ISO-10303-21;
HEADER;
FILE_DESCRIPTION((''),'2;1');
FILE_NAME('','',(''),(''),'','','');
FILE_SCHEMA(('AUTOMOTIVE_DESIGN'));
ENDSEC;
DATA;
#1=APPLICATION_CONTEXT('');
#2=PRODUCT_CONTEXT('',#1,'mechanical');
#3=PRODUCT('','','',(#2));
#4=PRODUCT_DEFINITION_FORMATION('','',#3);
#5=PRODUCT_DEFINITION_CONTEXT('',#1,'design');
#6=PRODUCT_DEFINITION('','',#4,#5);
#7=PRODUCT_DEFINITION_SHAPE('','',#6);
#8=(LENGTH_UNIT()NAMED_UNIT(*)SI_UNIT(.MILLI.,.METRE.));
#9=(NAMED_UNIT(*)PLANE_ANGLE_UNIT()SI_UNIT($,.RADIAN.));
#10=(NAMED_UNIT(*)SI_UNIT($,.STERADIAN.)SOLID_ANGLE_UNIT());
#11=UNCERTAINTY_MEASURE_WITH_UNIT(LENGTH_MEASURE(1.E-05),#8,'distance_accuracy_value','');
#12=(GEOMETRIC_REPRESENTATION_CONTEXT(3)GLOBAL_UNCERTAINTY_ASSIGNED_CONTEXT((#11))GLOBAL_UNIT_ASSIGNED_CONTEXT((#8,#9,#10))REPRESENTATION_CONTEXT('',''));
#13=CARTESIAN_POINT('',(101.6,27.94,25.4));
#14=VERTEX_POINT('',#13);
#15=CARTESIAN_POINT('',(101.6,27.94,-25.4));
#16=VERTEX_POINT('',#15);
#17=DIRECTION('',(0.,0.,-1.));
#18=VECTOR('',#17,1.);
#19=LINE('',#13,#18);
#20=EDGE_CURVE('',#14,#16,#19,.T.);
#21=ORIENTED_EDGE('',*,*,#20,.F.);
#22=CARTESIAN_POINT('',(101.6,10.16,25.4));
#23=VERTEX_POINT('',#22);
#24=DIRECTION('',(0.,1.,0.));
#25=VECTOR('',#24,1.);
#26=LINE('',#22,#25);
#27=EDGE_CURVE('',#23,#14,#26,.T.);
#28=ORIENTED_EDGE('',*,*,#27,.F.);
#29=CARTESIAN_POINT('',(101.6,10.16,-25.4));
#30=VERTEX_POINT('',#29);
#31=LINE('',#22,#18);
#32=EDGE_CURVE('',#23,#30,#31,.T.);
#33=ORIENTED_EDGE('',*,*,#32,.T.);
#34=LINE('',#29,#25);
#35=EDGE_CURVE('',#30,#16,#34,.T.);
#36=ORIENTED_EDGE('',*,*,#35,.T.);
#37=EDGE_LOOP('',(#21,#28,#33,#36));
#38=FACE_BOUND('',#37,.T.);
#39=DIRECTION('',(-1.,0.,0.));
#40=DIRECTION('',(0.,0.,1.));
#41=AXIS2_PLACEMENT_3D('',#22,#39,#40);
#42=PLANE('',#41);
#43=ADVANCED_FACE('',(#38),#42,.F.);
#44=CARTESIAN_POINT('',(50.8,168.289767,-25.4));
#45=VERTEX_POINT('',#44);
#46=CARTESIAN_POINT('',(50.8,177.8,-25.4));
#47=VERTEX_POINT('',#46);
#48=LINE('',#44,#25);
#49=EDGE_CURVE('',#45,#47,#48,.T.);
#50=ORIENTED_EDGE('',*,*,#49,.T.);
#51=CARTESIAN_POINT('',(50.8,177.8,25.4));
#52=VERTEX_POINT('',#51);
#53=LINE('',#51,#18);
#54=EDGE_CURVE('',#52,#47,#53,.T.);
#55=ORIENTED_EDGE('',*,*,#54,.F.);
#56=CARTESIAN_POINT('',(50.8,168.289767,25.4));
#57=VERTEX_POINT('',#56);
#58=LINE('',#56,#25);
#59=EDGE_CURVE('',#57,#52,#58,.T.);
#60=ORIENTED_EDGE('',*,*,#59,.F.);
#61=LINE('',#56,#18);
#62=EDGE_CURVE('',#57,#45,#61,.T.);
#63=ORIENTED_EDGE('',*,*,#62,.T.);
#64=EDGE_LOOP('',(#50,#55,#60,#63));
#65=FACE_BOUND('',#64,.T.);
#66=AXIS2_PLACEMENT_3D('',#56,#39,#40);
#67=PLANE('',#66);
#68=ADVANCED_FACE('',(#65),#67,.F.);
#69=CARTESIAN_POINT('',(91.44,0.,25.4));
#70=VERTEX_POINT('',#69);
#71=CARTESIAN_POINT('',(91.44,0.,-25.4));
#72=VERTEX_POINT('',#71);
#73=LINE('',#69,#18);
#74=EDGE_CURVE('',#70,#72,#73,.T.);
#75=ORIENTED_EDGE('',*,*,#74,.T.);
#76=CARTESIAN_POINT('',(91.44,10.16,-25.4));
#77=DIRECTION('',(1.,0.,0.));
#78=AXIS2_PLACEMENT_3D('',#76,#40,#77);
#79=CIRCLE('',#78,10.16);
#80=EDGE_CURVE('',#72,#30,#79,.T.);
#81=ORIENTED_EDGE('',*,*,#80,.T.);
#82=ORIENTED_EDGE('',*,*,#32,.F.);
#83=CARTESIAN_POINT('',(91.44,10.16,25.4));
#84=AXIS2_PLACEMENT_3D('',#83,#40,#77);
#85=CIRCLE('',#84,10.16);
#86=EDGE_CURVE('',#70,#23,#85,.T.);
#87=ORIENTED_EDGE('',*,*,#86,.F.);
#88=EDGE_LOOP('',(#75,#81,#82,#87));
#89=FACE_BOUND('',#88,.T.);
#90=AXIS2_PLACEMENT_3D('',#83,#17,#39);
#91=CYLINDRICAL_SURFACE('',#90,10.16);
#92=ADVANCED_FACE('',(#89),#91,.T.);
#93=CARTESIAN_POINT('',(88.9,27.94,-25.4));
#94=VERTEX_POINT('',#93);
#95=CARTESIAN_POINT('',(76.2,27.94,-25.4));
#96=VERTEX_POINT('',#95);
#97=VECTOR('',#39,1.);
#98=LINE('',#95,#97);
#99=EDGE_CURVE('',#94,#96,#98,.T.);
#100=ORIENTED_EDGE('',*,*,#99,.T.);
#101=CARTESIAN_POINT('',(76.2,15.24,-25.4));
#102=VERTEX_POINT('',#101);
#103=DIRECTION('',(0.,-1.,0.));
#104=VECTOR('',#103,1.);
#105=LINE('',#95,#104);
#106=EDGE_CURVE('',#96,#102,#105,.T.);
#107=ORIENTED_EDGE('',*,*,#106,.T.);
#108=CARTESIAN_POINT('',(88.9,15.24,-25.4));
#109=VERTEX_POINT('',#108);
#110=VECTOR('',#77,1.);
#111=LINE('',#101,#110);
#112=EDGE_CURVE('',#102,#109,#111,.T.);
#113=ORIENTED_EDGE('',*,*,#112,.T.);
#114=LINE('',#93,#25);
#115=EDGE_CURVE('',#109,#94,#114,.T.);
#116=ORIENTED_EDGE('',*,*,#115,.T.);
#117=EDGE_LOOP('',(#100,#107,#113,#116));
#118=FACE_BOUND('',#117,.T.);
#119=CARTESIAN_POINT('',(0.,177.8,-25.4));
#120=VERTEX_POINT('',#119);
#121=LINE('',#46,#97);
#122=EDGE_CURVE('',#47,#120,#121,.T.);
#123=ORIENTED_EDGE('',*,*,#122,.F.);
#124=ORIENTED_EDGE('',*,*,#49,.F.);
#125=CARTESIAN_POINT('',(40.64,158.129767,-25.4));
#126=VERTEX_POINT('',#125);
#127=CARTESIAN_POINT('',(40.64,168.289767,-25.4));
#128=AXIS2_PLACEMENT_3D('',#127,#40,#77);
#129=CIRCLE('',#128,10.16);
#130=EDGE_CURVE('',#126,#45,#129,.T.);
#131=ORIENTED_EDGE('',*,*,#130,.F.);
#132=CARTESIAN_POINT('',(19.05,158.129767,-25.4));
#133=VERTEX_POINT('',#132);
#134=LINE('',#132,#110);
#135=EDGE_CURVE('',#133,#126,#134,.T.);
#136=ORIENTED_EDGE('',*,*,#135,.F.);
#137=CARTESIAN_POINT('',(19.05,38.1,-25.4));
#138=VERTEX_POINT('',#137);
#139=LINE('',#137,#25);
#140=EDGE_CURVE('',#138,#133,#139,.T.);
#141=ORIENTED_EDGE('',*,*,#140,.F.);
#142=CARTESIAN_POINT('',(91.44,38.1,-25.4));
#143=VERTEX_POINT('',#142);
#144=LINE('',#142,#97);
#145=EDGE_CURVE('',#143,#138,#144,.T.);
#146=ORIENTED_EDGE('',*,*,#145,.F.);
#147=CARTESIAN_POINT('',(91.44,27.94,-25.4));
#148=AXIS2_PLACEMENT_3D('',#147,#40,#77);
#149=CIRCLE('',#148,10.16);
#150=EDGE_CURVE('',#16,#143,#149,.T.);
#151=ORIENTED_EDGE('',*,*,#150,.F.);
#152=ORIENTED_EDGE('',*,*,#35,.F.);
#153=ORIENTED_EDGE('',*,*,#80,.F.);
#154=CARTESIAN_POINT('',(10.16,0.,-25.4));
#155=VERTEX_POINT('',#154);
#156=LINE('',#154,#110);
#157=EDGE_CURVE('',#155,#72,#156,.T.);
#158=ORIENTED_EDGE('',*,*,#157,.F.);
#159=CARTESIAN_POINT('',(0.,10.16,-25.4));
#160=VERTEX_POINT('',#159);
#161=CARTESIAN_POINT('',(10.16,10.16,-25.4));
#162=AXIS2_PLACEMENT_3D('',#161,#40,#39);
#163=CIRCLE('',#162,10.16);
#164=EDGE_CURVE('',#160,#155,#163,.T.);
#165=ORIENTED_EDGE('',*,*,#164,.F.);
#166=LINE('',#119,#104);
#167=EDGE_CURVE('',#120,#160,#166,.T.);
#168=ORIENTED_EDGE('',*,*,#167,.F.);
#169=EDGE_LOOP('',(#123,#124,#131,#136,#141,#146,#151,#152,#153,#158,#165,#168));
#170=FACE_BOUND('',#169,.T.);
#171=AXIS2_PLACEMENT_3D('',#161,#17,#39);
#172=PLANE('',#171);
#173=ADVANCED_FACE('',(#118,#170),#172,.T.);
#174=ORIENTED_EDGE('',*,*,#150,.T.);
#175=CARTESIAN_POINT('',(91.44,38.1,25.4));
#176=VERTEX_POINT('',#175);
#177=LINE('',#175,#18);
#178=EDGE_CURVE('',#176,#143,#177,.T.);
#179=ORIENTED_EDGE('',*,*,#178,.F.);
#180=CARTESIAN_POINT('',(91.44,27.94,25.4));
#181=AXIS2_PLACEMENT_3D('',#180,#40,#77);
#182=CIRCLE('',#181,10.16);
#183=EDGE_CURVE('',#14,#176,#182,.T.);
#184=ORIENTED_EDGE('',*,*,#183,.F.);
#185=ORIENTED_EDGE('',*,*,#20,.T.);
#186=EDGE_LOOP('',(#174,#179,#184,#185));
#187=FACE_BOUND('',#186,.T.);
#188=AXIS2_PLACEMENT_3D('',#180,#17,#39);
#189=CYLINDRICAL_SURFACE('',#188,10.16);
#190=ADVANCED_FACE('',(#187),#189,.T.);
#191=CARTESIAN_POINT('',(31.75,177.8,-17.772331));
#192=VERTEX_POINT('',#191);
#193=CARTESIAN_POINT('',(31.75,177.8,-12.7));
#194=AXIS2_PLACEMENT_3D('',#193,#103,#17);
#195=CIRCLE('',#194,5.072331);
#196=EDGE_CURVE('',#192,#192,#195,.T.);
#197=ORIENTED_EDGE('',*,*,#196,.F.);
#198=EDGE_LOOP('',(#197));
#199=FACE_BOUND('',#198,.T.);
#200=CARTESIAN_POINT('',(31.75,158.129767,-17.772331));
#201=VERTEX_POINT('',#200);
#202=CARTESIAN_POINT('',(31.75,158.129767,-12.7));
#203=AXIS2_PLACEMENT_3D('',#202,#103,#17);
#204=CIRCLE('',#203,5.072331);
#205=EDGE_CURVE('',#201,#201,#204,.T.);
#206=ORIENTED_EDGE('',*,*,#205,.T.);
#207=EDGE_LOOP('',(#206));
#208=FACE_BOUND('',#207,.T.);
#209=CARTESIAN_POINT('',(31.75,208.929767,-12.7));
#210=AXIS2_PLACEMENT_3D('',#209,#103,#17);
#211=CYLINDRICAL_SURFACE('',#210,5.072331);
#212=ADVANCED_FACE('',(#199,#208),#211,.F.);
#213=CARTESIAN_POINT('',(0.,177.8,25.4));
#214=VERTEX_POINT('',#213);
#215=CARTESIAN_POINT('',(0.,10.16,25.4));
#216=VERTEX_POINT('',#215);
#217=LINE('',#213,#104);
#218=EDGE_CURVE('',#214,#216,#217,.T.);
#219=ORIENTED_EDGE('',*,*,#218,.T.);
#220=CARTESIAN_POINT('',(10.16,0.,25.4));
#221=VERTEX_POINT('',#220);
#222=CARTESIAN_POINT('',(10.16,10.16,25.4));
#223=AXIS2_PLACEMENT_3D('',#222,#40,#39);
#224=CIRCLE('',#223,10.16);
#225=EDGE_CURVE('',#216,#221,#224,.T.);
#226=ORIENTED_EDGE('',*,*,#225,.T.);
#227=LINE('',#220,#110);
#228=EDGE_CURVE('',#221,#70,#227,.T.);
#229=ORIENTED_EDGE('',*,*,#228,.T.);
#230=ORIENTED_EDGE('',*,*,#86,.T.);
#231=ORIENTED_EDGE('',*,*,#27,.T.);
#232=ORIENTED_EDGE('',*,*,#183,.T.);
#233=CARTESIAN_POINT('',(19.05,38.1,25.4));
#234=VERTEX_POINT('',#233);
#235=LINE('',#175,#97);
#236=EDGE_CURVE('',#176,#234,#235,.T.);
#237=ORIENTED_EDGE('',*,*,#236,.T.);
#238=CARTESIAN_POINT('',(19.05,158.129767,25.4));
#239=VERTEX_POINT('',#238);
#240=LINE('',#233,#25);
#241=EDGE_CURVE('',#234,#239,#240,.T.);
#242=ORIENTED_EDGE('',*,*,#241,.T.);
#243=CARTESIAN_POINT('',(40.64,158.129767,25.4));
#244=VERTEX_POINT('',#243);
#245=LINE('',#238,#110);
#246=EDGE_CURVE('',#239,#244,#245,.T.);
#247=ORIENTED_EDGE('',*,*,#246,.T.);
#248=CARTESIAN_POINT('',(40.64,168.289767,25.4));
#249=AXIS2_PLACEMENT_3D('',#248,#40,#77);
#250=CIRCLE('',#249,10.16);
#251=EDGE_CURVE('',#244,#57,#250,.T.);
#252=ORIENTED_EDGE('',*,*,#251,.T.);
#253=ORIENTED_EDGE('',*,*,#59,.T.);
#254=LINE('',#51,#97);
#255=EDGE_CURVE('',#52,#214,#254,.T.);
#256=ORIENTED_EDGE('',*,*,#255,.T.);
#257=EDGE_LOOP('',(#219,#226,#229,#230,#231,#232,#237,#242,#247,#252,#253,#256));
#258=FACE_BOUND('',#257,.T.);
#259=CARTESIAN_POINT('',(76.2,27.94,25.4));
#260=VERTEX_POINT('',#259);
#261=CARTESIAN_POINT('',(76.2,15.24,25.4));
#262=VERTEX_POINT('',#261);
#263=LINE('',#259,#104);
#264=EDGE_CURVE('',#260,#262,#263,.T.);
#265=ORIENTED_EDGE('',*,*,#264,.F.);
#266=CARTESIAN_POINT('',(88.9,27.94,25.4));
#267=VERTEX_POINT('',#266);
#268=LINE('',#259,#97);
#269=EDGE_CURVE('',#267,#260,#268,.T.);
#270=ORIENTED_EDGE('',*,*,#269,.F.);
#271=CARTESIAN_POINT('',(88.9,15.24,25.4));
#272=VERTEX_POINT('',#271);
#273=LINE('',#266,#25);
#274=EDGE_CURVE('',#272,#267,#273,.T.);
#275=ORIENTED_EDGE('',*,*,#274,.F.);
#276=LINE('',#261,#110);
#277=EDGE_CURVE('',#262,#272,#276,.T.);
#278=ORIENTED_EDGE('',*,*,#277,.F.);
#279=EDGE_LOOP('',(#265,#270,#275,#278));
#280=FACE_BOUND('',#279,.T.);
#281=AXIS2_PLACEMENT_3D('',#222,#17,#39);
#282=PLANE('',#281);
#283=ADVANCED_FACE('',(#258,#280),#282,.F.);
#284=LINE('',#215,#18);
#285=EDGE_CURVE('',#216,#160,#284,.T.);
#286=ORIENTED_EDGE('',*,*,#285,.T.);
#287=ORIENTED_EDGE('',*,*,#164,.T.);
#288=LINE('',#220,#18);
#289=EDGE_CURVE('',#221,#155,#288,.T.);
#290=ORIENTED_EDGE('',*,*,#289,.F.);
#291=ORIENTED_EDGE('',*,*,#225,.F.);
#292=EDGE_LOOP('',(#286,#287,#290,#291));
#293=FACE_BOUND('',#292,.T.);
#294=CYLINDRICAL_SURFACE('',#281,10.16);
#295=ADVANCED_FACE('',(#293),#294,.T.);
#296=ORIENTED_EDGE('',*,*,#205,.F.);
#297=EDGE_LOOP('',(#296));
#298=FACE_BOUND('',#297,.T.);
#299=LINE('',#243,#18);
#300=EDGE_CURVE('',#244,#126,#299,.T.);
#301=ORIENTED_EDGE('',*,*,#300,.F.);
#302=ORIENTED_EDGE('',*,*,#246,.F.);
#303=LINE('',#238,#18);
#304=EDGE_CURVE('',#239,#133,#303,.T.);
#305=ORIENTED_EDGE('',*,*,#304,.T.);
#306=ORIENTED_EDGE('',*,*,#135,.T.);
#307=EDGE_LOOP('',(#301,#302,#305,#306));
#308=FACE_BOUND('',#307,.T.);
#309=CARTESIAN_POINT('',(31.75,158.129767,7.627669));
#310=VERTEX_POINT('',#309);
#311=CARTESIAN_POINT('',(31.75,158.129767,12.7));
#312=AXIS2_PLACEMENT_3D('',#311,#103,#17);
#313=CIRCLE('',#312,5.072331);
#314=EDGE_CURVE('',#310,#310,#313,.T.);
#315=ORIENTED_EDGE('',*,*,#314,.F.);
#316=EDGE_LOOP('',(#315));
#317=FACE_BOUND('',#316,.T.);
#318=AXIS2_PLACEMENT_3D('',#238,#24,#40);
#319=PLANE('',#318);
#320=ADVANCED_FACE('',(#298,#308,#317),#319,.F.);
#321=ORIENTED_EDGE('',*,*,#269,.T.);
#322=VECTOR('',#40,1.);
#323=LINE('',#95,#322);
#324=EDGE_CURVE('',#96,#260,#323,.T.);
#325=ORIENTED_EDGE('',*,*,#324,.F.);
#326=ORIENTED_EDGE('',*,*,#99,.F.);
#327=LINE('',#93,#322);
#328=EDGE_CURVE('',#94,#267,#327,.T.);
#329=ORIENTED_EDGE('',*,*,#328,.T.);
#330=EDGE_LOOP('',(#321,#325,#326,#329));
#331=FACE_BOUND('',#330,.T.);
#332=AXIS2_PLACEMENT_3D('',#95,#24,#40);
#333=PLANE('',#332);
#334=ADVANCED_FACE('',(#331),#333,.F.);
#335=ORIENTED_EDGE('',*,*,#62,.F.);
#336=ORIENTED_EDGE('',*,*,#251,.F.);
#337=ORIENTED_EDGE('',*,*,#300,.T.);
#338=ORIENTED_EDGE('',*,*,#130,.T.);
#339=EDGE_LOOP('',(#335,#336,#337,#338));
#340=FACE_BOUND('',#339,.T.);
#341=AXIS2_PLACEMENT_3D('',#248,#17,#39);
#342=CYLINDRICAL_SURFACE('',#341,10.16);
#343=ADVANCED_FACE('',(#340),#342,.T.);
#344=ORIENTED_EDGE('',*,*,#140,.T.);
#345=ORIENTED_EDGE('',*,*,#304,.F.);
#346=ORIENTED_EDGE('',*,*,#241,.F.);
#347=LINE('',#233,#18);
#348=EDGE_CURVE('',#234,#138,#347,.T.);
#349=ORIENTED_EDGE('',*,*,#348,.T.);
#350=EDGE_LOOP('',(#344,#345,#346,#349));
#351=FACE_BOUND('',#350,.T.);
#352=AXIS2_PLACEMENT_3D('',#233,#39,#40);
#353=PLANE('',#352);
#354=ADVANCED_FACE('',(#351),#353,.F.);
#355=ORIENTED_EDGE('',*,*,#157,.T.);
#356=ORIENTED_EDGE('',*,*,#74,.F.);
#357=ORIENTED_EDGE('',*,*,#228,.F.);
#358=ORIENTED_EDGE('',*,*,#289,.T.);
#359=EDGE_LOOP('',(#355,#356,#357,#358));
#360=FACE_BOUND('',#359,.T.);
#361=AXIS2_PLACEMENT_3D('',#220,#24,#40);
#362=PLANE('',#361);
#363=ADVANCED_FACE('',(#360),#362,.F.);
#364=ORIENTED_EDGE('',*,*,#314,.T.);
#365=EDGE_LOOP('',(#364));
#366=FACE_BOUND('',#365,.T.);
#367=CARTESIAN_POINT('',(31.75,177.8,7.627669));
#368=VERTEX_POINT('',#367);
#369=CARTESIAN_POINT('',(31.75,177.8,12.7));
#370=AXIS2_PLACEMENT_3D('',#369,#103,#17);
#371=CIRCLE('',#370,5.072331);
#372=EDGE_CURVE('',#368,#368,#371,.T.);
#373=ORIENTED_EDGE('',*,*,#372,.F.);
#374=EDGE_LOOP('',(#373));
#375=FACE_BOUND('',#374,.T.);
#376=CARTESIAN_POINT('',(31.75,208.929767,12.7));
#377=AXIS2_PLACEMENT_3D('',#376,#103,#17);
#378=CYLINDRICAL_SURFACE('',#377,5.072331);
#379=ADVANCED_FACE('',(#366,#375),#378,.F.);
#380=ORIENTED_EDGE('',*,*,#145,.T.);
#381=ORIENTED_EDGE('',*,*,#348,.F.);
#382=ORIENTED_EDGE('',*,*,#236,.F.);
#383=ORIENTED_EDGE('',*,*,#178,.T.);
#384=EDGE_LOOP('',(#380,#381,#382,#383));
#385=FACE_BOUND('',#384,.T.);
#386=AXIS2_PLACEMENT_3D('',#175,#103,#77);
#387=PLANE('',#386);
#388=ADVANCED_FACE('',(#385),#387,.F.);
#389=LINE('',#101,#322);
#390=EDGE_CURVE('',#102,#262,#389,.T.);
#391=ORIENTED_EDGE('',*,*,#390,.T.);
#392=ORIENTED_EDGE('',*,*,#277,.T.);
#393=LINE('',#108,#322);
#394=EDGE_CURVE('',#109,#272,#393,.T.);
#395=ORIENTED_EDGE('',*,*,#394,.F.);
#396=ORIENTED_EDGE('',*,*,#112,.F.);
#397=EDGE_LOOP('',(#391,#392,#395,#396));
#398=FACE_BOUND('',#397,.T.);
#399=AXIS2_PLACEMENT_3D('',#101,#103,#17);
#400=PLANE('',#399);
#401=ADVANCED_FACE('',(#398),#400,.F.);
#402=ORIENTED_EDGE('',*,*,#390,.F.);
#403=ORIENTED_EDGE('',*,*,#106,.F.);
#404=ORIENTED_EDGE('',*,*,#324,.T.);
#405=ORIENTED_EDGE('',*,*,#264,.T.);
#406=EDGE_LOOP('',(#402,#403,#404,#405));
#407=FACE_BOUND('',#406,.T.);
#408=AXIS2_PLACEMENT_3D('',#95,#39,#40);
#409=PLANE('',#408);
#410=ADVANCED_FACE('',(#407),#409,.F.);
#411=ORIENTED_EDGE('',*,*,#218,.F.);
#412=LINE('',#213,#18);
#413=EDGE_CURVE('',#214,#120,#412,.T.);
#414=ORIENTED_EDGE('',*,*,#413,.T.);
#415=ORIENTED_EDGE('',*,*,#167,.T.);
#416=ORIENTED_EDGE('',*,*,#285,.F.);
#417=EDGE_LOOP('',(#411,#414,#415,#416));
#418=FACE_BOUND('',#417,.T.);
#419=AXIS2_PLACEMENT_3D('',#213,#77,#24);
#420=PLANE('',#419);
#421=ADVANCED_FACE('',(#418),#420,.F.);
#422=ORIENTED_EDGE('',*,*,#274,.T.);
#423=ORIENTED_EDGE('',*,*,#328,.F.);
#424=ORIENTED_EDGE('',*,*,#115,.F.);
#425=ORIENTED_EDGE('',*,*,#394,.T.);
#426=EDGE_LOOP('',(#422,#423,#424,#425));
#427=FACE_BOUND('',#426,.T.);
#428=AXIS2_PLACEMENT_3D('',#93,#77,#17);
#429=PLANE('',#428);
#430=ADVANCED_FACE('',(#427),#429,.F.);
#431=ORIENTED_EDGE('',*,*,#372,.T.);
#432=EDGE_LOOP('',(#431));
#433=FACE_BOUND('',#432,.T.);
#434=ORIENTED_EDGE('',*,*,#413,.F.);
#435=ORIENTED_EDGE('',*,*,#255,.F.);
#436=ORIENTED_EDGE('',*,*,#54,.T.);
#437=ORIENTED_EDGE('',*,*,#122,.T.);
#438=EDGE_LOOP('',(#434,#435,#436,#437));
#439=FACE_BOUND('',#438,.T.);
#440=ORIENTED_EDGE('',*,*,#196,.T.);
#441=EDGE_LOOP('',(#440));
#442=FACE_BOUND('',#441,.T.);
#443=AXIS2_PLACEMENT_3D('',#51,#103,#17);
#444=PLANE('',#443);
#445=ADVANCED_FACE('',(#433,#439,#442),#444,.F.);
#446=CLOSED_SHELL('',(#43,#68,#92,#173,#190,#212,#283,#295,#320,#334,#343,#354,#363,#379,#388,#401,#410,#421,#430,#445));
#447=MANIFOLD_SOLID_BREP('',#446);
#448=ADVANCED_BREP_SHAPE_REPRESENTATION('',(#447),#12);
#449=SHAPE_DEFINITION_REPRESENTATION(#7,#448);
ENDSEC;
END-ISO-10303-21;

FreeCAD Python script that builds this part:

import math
import FreeCAD as App
import Part
import Sketcher

V = App.Vector
Q = App.Units.Quantity


def add_polygon(sketch, points):
    """Adds a closed chain of lines whose ends are joined by coincident constraints."""
    first, n = sketch.GeometryCount, len(points)
    for a, b in zip(points, points[1:] + points[:1]):
        sketch.addGeometry(Part.LineSegment(App.Vector(*a, 0), App.Vector(*b, 0)), False)
    for i in range(n):
        sketch.addConstraint(Sketcher.Constraint("Coincident", first + i, 2, first + (i + 1) % n, 1))

doc = App.newDocument("Part")
body = doc.addObject("PartDesign::Body", "Body")

# Sketch on XY plane
sketch1 = body.newObject("Sketcher::SketchObject", "Sketch")
sketch1.AttachmentSupport = (doc.getObject("XY_Plane"), [""])
sketch1.MapMode = "FlatFace"
sketch1.addGeometry(Part.LineSegment(V(10, 0, 0), V(91, 0, 0)), False)
sketch1.addGeometry(Part.ArcOfCircle(Part.Circle(V(91, 10, 0), V(0, 0, 1), 10), math.radians(-90), math.radians(0)), False)
sketch1.addGeometry(Part.LineSegment(V(102, 10, 0), V(102, 28, 0)), False)
sketch1.addGeometry(Part.ArcOfCircle(Part.Circle(V(91, 28, 0), V(0, 0, 1), 10), math.radians(0), math.radians(90)), False)
sketch1.addGeometry(Part.LineSegment(V(91, 38, 0), V(19, 38, 0)), False)
sketch1.addGeometry(Part.LineSegment(V(19, 38, 0), V(19, 158, 0)), False)
sketch1.addGeometry(Part.LineSegment(V(19, 158, 0), V(41, 158, 0)), False)
sketch1.addGeometry(Part.ArcOfCircle(Part.Circle(V(41, 168, 0), V(0, 0, 1), 10), math.radians(-90), math.radians(0)), False)
sketch1.addGeometry(Part.LineSegment(V(51, 168, 0), V(51, 178, 0)), False)
sketch1.addGeometry(Part.LineSegment(V(51, 178, 0), V(0, 178, 0)), False)
sketch1.addGeometry(Part.LineSegment(V(0, 178, 0), V(0, 10, 0)), False)
sketch1.addGeometry(Part.ArcOfCircle(Part.Circle(V(10, 10, 0), V(0, 0, 1), 10), math.radians(180), math.radians(270)), False)
sketch1.addConstraint(Sketcher.Constraint("Tangent", 0, 2, 1, 1))
sketch1.addConstraint(Sketcher.Constraint("Tangent", 1, 2, 2, 1))
sketch1.addConstraint(Sketcher.Constraint("Tangent", 2, 2, 3, 1))
sketch1.addConstraint(Sketcher.Constraint("Tangent", 3, 2, 4, 1))
sketch1.addConstraint(Sketcher.Constraint("Coincident", 4, 2, 5, 1))
sketch1.addConstraint(Sketcher.Constraint("Coincident", 5, 2, 6, 1))
sketch1.addConstraint(Sketcher.Constraint("Tangent", 6, 2, 7, 1))
sketch1.addConstraint(Sketcher.Constraint("Tangent", 7, 2, 8, 1))
sketch1.addConstraint(Sketcher.Constraint("Coincident", 8, 2, 9, 1))
sketch1.addConstraint(Sketcher.Constraint("Coincident", 9, 2, 10, 1))
sketch1.addConstraint(Sketcher.Constraint("Tangent", 10, 2, 11, 1))
sketch1.addConstraint(Sketcher.Constraint("Tangent", 11, 2, 0, 1))
sketch1.addConstraint(Sketcher.Constraint("Horizontal", 0))
sketch1.addConstraint(Sketcher.Constraint("Vertical", 2))
sketch1.addConstraint(Sketcher.Constraint("Horizontal", 4))
sketch1.addConstraint(Sketcher.Constraint("Vertical", 5))
sketch1.addConstraint(Sketcher.Constraint("Horizontal", 6))
sketch1.addConstraint(Sketcher.Constraint("Vertical", 8))
sketch1.addConstraint(Sketcher.Constraint("Horizontal", 9))
sketch1.addConstraint(Sketcher.Constraint("Vertical", 10))
sketch1.addConstraint(Sketcher.Constraint("Equal", 1, 3))
sketch1.addConstraint(Sketcher.Constraint("Equal", 3, 7))
sketch1.addConstraint(Sketcher.Constraint("Equal", 7, 11))
sketch1.addConstraint(Sketcher.Constraint("PointOnObject", 0, 2, -1))
sketch1.addConstraint(Sketcher.Constraint("PointOnObject", 9, 2, -2))
sketch1.addConstraint(Sketcher.Constraint("Radius", 1, Q("0.4 in")))
sketch1.addConstraint(Sketcher.Constraint("DistanceX", 9, 2, 9, 1, Q("2 in")))
sketch1.addConstraint(Sketcher.Constraint("DistanceX", 0, 1, 0, 2, Q("3.2 in")))
sketch1.addConstraint(Sketcher.Constraint("DistanceY", 2, 1, 2, 2, Q("0.7 in")))
sketch1.addConstraint(Sketcher.Constraint("DistanceY", 10, 2, 10, 1, Q("6.6 in")))
sketch1.addConstraint(Sketcher.Constraint("DistanceX", 4, 2, 4, 1, Q("2.85 in")))
sketch1.addConstraint(Sketcher.Constraint("DistanceY", 5, 1, 5, 2, Q("120.029767 mm")))
pad1 = body.newObject("PartDesign::Pad", "Pad")
pad1.Profile = sketch1
pad1.Length = Q("2 in")
pad1.Midplane = True

# Sketch on XY plane
sketch2 = body.newObject("Sketcher::SketchObject", "Sketch001")
sketch2.AttachmentSupport = (doc.getObject("XY_Plane"), [""])
sketch2.MapMode = "FlatFace"
sketch2.AttachmentOffset = App.Placement(V(0, 0, 1 * 25.4), App.Rotation())
add_polygon(sketch2, [(76, 28), (76, 15), (89, 15), (89, 28)])  # lines 0-3
sketch2.addConstraint(Sketcher.Constraint("Vertical", 0))
sketch2.addConstraint(Sketcher.Constraint("Horizontal", 1))
sketch2.addConstraint(Sketcher.Constraint("Vertical", 2))
sketch2.addConstraint(Sketcher.Constraint("Horizontal", 3))
sketch2.addConstraint(Sketcher.Constraint("Equal", 3, 0))
sketch2.addConstraint(Sketcher.Constraint("DistanceX", 1, 1, 1, 2, Q("0.5 in")))
sketch2.addConstraint(Sketcher.Constraint("DistanceX", -1, 1, 0, 2, Q("3 in")))
sketch2.addConstraint(Sketcher.Constraint("DistanceY", -1, 1, 0, 2, Q("0.6 in")))
pocket1 = body.newObject("PartDesign::Pocket", "Pocket")
pocket1.Profile = sketch2
pocket1.Length = Q("2 in")

# Sketch on XZ plane
sketch3 = body.newObject("Sketcher::SketchObject", "Sketch002")
sketch3.AttachmentSupport = (doc.getObject("XZ_Plane"), [""])
sketch3.MapMode = "FlatFace"
sketch3.AttachmentOffset = App.Placement(V(0, 0, -158.129767), App.Rotation())
sketch3.addGeometry(Part.Circle(V(32, 13, 0), V(0, 0, 1), 5), False)
sketch3.addGeometry(Part.Circle(V(32, -13, 0), V(0, 0, 1), 5), False)
sketch3.addConstraint(Sketcher.Constraint("Equal", 0, 1))
sketch3.addConstraint(Sketcher.Constraint("Symmetric", 0, 3, 1, 3, -1))
sketch3.addConstraint(Sketcher.Constraint("DistanceY", 1, 3, 0, 3, Q("1 in")))
sketch3.addConstraint(Sketcher.Constraint("DistanceX", -1, 1, 0, 3, Q("1.25 in")))
sketch3.addConstraint(Sketcher.Constraint("Diameter", 0, Q("10.144661 mm")))
pocket2 = body.newObject("PartDesign::Pocket", "Pocket001")
pocket2.Profile = sketch3
pocket2.Length = Q("2 in")

doc.recompute()
